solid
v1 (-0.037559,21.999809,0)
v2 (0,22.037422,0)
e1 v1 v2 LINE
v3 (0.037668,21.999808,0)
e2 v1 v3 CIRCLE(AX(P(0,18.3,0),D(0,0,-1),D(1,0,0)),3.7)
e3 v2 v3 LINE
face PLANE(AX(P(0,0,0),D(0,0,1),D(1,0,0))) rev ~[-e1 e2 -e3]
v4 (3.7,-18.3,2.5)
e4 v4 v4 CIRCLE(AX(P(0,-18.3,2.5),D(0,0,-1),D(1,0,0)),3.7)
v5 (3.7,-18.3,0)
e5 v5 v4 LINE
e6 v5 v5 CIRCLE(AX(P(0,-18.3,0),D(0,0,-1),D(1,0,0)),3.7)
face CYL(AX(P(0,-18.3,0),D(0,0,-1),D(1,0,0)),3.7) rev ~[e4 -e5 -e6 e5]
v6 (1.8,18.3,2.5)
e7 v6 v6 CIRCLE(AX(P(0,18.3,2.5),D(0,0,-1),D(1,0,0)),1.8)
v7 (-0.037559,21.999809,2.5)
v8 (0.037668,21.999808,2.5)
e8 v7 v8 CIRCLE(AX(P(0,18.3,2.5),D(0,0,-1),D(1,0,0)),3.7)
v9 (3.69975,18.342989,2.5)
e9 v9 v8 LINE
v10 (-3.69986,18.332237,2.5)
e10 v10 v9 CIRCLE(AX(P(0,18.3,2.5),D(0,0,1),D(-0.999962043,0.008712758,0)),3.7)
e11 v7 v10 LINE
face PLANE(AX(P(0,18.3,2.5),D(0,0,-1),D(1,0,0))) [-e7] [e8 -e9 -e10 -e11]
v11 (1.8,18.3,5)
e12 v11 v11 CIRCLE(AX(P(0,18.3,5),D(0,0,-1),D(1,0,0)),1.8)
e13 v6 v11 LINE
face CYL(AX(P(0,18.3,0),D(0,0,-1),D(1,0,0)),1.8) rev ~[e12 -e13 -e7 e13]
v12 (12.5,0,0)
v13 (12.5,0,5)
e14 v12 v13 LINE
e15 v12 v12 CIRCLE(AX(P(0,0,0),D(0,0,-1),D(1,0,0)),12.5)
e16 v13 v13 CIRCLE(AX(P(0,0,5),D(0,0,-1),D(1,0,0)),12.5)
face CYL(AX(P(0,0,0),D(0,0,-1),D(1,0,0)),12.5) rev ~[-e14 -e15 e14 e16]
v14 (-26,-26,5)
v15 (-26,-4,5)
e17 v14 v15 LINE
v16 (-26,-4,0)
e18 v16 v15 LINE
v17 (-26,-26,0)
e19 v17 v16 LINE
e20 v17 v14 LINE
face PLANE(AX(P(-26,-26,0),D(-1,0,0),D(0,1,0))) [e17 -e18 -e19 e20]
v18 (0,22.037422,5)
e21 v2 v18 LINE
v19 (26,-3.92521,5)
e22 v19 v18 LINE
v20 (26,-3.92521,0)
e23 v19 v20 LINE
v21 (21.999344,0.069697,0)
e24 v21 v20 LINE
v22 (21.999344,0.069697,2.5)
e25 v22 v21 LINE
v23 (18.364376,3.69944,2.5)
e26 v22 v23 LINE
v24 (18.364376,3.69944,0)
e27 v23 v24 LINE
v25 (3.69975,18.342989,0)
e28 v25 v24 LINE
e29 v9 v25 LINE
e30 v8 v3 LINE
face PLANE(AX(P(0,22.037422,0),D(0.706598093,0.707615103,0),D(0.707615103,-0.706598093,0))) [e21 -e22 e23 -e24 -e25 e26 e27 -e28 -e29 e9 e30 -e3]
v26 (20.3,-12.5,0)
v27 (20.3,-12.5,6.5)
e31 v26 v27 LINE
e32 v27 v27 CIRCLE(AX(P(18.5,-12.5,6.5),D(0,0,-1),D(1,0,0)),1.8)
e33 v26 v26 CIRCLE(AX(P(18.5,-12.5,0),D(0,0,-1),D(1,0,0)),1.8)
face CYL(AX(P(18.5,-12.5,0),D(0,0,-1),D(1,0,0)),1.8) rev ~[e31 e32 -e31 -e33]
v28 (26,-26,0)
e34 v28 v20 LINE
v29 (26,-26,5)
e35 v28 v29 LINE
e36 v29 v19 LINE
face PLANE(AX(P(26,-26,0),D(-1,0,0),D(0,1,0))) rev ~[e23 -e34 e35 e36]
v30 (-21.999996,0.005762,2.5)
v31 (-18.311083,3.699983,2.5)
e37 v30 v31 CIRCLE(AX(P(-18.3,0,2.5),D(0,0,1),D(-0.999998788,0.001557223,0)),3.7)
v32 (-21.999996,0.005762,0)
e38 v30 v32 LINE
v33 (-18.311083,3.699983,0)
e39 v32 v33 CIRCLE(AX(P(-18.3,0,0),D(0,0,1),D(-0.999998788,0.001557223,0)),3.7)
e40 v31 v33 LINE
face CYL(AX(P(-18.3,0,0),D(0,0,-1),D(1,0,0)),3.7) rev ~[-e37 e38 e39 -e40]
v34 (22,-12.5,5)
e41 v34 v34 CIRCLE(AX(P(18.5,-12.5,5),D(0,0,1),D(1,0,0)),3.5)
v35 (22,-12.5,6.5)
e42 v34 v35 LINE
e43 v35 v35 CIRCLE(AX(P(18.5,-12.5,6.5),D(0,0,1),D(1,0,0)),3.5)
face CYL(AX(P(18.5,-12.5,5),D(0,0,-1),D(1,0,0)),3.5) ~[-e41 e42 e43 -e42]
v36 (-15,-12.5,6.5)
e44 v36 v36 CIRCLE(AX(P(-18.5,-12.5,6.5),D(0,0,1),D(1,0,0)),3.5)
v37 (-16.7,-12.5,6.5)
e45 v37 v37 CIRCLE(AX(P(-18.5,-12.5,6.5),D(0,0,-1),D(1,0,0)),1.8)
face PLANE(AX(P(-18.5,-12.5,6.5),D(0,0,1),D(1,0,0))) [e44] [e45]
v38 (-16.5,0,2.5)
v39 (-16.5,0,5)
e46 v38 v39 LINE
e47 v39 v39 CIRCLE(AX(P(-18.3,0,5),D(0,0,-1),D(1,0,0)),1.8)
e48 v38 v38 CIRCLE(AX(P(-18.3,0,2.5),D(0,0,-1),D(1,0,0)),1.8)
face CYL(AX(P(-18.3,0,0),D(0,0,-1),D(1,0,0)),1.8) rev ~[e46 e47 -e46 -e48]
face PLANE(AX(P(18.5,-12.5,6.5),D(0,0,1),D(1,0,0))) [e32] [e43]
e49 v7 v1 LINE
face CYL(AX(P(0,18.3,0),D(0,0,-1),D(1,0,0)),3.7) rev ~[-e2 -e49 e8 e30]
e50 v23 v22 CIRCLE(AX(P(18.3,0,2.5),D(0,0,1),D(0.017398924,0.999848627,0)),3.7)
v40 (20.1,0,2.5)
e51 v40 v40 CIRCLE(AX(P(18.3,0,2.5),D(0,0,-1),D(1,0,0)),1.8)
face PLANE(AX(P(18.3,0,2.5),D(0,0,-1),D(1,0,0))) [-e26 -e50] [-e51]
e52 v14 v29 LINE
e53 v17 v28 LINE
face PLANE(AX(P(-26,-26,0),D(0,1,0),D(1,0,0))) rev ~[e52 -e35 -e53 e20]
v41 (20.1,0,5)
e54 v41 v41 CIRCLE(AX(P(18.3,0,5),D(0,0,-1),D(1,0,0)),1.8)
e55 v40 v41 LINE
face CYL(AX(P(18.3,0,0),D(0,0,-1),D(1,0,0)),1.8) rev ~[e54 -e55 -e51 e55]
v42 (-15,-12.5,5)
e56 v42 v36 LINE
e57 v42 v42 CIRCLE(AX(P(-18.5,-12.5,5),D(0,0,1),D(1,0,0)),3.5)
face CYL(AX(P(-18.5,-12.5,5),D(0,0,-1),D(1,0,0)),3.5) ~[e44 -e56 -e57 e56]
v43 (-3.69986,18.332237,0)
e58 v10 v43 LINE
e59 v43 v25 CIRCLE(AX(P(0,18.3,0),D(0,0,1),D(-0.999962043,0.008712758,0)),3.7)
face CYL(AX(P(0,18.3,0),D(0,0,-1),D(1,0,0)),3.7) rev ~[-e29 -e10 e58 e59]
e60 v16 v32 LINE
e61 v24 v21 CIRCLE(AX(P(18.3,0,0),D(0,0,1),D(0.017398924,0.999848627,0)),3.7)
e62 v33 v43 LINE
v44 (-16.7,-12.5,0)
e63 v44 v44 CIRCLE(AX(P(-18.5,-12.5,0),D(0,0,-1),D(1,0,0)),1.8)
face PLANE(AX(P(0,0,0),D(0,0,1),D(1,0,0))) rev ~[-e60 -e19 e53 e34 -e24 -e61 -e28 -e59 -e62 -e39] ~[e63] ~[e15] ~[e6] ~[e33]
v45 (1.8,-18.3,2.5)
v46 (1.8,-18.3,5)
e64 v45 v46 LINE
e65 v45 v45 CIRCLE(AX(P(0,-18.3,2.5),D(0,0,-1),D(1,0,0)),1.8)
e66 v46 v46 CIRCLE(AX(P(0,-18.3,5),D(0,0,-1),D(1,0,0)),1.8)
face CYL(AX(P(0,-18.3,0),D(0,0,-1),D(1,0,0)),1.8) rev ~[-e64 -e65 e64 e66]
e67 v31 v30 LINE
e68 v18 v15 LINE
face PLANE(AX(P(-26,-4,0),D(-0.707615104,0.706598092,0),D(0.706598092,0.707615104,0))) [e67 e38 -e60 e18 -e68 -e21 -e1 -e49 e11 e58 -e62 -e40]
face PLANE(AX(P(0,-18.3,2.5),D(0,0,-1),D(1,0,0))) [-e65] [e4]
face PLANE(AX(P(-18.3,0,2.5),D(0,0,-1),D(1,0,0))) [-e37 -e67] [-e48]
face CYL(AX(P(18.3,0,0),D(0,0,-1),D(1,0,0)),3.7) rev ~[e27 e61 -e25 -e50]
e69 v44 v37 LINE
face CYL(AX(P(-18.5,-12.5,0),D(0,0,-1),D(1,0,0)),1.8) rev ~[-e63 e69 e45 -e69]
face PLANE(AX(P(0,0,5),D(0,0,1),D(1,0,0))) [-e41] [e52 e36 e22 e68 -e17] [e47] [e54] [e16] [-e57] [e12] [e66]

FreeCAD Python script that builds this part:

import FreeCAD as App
import Part
import Sketcher
from FreeCAD import Vector
Q = App.Units.Quantity


def add_polygon(sketch, points):
    """Adds a closed chain of lines whose ends are joined by coincident constraints."""
    first, n = sketch.GeometryCount, len(points)
    for a, b in zip(points, points[1:] + points[:1]):
        sketch.addGeometry(Part.LineSegment(App.Vector(*a, 0), App.Vector(*b, 0)), False)
    for i in range(n):
        sketch.addConstraint(Sketcher.Constraint("Coincident", first + i, 2, first + (i + 1) % n, 1))

doc = App.newDocument("Part")
params = doc.addObject("Spreadsheet::Sheet", "Params")
for row, (alias, value) in enumerate([
    ("sketch1_width", "52 mm"),
    ("pad1_length", "5 mm"),
    ("sketch2_diameter", "7 mm"),
    ("pad2_length", "1.5 mm"),
    ("sketch3_diameter", "25 mm"),
    ("sketch3_diameter2", "3.6 mm"),
    ("sketch3_height", "38 mm"),
    ("sketch4_diameter", "7.4 mm"),
    ("pocket2_length", "2.5 mm"),
], start=1):
    params.set(f"A{row}", alias)
    params.set(f"B{row}", "=" + value)
    params.setAlias(f"B{row}", alias)

body = doc.addObject("PartDesign::Body", "Body")

# Sketch on XY plane
sketch1 = body.newObject("Sketcher::SketchObject", "Sketch")
sketch1.AttachmentSupport = (doc.getObject("XY_Plane"), [""])
sketch1.MapMode = "FlatFace"
add_polygon(sketch1, [(-26, 26), (-26, -26), (26, -26), (26, 26)])  # lines 0-3
sketch1.addConstraint([
    Sketcher.Constraint("Vertical", 0),
    Sketcher.Constraint("Horizontal", 1),
    Sketcher.Constraint("Vertical", 2),
    Sketcher.Constraint("Horizontal", 3),
    Sketcher.Constraint("Symmetric", 0, 2, 2, 2, -1, 1),
    Sketcher.Constraint("Equal", 3, 0),
    Sketcher.Constraint("DistanceX", 1, 1, 1, 2, Q("52 mm")),
])
sketch1.setExpression("Constraints[10]", "Params.sketch1_width")
pad1 = body.newObject("PartDesign::Pad", "Pad")
pad1.Profile = sketch1
pad1.setExpression("Length", "Params.pad1_length")

# Sketch on XY plane
sketch2 = body.newObject("Sketcher::SketchObject", "Sketch001")
sketch2.AttachmentSupport = (doc.getObject("XY_Plane"), [""])
sketch2.MapMode = "FlatFace"
sketch2.AttachmentOffset = App.Placement(Vector(0, 0, 5), App.Rotation())
sketch2.addGeometry([
    Part.Circle(Vector(-18.5, -12.5, 0), Vector(0, 0, 1), 3.5),
    Part.Circle(Vector(18.5, -12.5, 0), Vector(0, 0, 1), 3.5),
], False)
sketch2.addConstraint([
    Sketcher.Constraint("Equal", 0, 1),
    Sketcher.Constraint("Symmetric", 0, 3, 1, 3, -2),
    Sketcher.Constraint("Diameter", 0, Q("7 mm")),
    Sketcher.Constraint("DistanceX", 0, 3, 1, 3, Q("37 mm")),
    Sketcher.Constraint("DistanceY", 0, 3, -1, 1, Q("12.5 mm")),
])
sketch2.setExpression("Constraints[2]", "Params.sketch2_diameter")
pad2 = body.newObject("PartDesign::Pad", "Pad001")
pad2.Profile = sketch2
pad2.setExpression("Length", "Params.pad2_length")

# Sketch on XY plane
sketch3 = body.newObject("Sketcher::SketchObject", "Sketch002")
sketch3.AttachmentSupport = (doc.getObject("XY_Plane"), [""])
sketch3.MapMode = "FlatFace"
sketch3.addGeometry(Part.Circle(Vector(0, 0, 0), Vector(0, 0, 1), 12.5), False)  # 0
sketch3.addGeometry(Part.Circle(Vector(0, -18.3, 0), Vector(0, 0, 1), 1.8), False)  # 1
sketch3.addGeometry(Part.Circle(Vector(0, 18.3, 0), Vector(0, 0, 1), 1.8), False)  # 2
sketch3.addGeometry(Part.Circle(Vector(-18.3, 0, 0), Vector(0, 0, 1), 1.8), False)  # 3
sketch3.addGeometry(Part.Circle(Vector(18.3, 0, 0), Vector(0, 0, 1), 1.8), False)  # 4
sketch3.addGeometry(Part.Circle(Vector(-18.5, -12.5, 0), Vector(0, 0, 1), 1.8), False)  # 5
sketch3.addGeometry(Part.Circle(Vector(18.5, -12.5, 0), Vector(0, 0, 1), 1.8), False)  # 6
add_polygon(sketch3, [(0, 22.037422), (-26, -4), (-26, 34), (26.037481, 34), (26.037481, -3.962637)])  # lines 7-11
sketch3.addConstraint([
    Sketcher.Constraint("Vertical", 8),
    Sketcher.Constraint("Horizontal", 9),
    Sketcher.Constraint("Vertical", 10),
    Sketcher.Constraint("Coincident", 0, 3, -1, 1),
    Sketcher.Constraint("Equal", 1, 2),
    Sketcher.Constraint("Equal", 2, 3),
    Sketcher.Constraint("Equal", 3, 4),
    Sketcher.Constraint("Equal", 4, 5),
    Sketcher.Constraint("Equal", 5, 6),
    Sketcher.Constraint("Symmetric", 1, 3, 2, 3, -1, 1),
    Sketcher.Constraint("Symmetric", 3, 3, 4, 3, -1, 1),
    Sketcher.Constraint("Symmetric", 5, 3, 6, 3, -2),
    Sketcher.Constraint("PointOnObject", 1, 3, -2),
    Sketcher.Constraint("PointOnObject", 3, 3, -1),
    Sketcher.Constraint("PointOnObject", 11, 2, -2),
    Sketcher.Constraint("Perpendicular", 7, 11),
    Sketcher.Constraint("Diameter", 0, Q("25 mm")),
    Sketcher.Constraint("Diameter", 1, Q("3.6 mm")),
    Sketcher.Constraint("DistanceY", 8, 1, 8, 2, Q("38 mm")),
    Sketcher.Constraint("DistanceX", 7, 2, -1, 1, Q("26 mm")),
    Sketcher.Constraint("DistanceY", 7, 2, -1, 1, Q("4 mm")),
    Sketcher.Constraint("DistanceX", 5, 3, 6, 3, Q("37 mm")),
    Sketcher.Constraint("DistanceY", 1, 3, -1, 1, Q("18.3 mm")),
    Sketcher.Constraint("DistanceX", 3, 3, -1, 1, Q("18.3 mm")),
    Sketcher.Constraint("DistanceY", 5, 3, -1, 1, Q("12.5 mm")),
    Sketcher.Constraint("DistanceX", 9, 1, 9, 2, Q("52.037481 mm")),
    Sketcher.Constraint("DistanceY", 10, 2, 10, 1, Q("37.962637 mm")),
])
sketch3.setExpression("Constraints[21]", "Params.sketch3_diameter")
sketch3.setExpression("Constraints[22]", "Params.sketch3_diameter2")
sketch3.setExpression("Constraints[23]", "Params.sketch3_height")
pocket1 = body.newObject("PartDesign::Pocket", "Pocket")
pocket1.Profile = sketch3
pocket1.Type = "ThroughAll"
pocket1.Reversed = True

# Sketch on XY plane
sketch4 = body.newObject("Sketcher::SketchObject", "Sketch003")
sketch4.AttachmentSupport = (doc.getObject("XY_Plane"), [""])
sketch4.MapMode = "FlatFace"
sketch4.addGeometry([
    Part.Circle(Vector(-18.3, 0, 0), Vector(0, 0, 1), 3.7),
    Part.Circle(Vector(0, -18.3, 0), Vector(0, 0, 1), 3.7),
    Part.Circle(Vector(18.3, 0, 0), Vector(0, 0, 1), 3.7),
    Part.Circle(Vector(0, 18.3, 0), Vector(0, 0, 1), 3.7),
], False)
sketch4.addConstraint([
    Sketcher.Constraint("Equal", 0, 1),
    Sketcher.Constraint("Equal", 1, 2),
    Sketcher.Constraint("Equal", 2, 3),
    Sketcher.Constraint("Symmetric", 0, 3, 2, 3, -1, 1),
    Sketcher.Constraint("Symmetric", 1, 3, 3, 3, -1, 1),
    Sketcher.Constraint("PointOnObject", 0, 3, -1),
    Sketcher.Constraint("PointOnObject", 1, 3, -2),
    Sketcher.Constraint("Diameter", 0, Q("7.4 mm")),
    Sketcher.Constraint("DistanceX", 0, 3, -1, 1, Q("18.3 mm")),
    Sketcher.Constraint("DistanceY", 1, 3, -1, 1, Q("18.3 mm")),
])
sketch4.setExpression("Constraints[7]", "Params.sketch4_diameter")
pocket2 = body.newObject("PartDesign::Pocket", "Pocket001")
pocket2.Profile = sketch4
pocket2.setExpression("Length", "Params.pocket2_length")
pocket2.Reversed = True

doc.recompute()
